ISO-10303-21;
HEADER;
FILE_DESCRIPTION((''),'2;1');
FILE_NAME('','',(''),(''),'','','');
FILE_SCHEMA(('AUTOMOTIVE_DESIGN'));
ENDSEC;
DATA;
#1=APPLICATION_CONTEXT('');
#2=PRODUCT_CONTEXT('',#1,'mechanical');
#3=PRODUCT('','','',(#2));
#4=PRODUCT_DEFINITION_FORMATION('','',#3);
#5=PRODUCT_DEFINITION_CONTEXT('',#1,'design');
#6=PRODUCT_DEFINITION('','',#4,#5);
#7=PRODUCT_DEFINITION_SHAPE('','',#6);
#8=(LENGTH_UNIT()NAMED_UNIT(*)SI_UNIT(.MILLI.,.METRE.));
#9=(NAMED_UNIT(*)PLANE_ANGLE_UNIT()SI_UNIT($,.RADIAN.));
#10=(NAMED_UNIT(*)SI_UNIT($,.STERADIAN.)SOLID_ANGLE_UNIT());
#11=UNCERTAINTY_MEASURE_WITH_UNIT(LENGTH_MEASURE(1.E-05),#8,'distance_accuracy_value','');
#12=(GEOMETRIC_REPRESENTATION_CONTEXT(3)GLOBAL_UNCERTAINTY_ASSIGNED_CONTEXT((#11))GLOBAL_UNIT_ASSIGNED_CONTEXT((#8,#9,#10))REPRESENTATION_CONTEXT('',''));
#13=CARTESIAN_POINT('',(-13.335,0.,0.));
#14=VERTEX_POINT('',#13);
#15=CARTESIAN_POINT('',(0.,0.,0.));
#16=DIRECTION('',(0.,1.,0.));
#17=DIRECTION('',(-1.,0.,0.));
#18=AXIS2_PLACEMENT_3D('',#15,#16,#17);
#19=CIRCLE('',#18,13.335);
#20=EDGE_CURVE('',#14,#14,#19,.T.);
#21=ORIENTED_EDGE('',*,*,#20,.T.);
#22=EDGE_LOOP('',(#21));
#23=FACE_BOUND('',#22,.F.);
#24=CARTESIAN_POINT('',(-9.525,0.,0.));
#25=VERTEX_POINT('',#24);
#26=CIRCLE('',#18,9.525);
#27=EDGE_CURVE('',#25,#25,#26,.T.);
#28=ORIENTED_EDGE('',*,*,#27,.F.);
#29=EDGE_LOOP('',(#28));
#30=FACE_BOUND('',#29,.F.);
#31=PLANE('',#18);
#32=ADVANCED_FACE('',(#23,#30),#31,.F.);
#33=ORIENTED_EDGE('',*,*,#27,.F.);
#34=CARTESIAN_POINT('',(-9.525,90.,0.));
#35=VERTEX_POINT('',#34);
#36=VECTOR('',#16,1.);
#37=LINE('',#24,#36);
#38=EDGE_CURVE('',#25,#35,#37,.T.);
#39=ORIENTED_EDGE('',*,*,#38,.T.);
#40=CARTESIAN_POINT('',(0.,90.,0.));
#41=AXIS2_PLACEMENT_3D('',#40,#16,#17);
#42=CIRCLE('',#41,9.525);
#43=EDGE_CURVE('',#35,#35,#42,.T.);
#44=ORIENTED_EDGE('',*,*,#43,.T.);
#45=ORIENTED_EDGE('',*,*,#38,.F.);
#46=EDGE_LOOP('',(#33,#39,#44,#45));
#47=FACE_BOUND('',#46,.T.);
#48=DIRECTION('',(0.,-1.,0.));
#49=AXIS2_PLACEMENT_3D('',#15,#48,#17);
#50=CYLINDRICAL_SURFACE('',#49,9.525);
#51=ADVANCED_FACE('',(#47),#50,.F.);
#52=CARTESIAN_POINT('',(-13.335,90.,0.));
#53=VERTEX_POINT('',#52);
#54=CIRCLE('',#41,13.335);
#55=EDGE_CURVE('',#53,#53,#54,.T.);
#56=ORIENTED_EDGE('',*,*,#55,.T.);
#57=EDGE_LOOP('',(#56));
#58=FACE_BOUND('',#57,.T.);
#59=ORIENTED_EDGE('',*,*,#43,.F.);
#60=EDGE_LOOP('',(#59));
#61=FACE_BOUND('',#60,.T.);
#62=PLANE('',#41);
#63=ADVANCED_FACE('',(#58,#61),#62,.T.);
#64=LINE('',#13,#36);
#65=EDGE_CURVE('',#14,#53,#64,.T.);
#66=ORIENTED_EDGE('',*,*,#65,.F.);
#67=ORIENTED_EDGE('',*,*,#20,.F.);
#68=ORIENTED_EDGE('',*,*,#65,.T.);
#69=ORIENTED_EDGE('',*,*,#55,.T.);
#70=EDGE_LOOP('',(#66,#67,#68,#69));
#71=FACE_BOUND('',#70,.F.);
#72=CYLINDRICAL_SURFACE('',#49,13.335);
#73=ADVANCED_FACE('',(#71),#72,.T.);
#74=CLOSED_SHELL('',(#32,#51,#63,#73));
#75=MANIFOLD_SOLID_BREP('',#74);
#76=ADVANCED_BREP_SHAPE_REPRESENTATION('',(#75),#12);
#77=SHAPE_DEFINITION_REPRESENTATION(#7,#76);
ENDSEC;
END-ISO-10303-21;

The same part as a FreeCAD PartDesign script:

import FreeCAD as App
import Part
import Sketcher

V = App.Vector
Q = App.Units.Quantity

doc = App.newDocument("Part")
params = doc.addObject("Spreadsheet::Sheet", "Params")
for row, (alias, value) in enumerate([
    ("sketch1_diameter", "1.05 in"),
    ("sketch1_diameter2", "0.75 in"),
    ("pad1_length", "3.5433071 in"),
], start=1):
    params.set(f"A{row}", alias)
    params.set(f"B{row}", "=" + value)
    params.setAlias(f"B{row}", alias)

body = doc.addObject("PartDesign::Body", "Body")

sketch1 = body.newObject("Sketcher::SketchObject", "Sketch")
sketch1.AttachmentSupport = (doc.getObject("XZ_Plane"), [""])
sketch1.MapMode = "FlatFace"
sketch1.addGeometry([
    Part.Circle(V(0, 0, 0), V(0, 0, 1), 13),
    Part.Circle(V(0, 0, 0), V(0, 0, 1), 10),
], False)
sketch1.addConstraint([
    Sketcher.Constraint("Coincident", 0, 3, -1, 1),
    Sketcher.Constraint("Coincident", 1, 3, -1, 1),
    Sketcher.Constraint("Diameter", 0, Q("1.05 in")),
    Sketcher.Constraint("Diameter", 1, Q("0.75 in")),
])
sketch1.setExpression("Constraints[2]", "Params.sketch1_diameter")
sketch1.setExpression("Constraints[3]", "Params.sketch1_diameter2")
pad1 = body.newObject("PartDesign::Pad", "Pad")
pad1.Profile = sketch1
pad1.setExpression("Length", "Params.pad1_length")
pad1.Reversed = True

doc.recompute()
